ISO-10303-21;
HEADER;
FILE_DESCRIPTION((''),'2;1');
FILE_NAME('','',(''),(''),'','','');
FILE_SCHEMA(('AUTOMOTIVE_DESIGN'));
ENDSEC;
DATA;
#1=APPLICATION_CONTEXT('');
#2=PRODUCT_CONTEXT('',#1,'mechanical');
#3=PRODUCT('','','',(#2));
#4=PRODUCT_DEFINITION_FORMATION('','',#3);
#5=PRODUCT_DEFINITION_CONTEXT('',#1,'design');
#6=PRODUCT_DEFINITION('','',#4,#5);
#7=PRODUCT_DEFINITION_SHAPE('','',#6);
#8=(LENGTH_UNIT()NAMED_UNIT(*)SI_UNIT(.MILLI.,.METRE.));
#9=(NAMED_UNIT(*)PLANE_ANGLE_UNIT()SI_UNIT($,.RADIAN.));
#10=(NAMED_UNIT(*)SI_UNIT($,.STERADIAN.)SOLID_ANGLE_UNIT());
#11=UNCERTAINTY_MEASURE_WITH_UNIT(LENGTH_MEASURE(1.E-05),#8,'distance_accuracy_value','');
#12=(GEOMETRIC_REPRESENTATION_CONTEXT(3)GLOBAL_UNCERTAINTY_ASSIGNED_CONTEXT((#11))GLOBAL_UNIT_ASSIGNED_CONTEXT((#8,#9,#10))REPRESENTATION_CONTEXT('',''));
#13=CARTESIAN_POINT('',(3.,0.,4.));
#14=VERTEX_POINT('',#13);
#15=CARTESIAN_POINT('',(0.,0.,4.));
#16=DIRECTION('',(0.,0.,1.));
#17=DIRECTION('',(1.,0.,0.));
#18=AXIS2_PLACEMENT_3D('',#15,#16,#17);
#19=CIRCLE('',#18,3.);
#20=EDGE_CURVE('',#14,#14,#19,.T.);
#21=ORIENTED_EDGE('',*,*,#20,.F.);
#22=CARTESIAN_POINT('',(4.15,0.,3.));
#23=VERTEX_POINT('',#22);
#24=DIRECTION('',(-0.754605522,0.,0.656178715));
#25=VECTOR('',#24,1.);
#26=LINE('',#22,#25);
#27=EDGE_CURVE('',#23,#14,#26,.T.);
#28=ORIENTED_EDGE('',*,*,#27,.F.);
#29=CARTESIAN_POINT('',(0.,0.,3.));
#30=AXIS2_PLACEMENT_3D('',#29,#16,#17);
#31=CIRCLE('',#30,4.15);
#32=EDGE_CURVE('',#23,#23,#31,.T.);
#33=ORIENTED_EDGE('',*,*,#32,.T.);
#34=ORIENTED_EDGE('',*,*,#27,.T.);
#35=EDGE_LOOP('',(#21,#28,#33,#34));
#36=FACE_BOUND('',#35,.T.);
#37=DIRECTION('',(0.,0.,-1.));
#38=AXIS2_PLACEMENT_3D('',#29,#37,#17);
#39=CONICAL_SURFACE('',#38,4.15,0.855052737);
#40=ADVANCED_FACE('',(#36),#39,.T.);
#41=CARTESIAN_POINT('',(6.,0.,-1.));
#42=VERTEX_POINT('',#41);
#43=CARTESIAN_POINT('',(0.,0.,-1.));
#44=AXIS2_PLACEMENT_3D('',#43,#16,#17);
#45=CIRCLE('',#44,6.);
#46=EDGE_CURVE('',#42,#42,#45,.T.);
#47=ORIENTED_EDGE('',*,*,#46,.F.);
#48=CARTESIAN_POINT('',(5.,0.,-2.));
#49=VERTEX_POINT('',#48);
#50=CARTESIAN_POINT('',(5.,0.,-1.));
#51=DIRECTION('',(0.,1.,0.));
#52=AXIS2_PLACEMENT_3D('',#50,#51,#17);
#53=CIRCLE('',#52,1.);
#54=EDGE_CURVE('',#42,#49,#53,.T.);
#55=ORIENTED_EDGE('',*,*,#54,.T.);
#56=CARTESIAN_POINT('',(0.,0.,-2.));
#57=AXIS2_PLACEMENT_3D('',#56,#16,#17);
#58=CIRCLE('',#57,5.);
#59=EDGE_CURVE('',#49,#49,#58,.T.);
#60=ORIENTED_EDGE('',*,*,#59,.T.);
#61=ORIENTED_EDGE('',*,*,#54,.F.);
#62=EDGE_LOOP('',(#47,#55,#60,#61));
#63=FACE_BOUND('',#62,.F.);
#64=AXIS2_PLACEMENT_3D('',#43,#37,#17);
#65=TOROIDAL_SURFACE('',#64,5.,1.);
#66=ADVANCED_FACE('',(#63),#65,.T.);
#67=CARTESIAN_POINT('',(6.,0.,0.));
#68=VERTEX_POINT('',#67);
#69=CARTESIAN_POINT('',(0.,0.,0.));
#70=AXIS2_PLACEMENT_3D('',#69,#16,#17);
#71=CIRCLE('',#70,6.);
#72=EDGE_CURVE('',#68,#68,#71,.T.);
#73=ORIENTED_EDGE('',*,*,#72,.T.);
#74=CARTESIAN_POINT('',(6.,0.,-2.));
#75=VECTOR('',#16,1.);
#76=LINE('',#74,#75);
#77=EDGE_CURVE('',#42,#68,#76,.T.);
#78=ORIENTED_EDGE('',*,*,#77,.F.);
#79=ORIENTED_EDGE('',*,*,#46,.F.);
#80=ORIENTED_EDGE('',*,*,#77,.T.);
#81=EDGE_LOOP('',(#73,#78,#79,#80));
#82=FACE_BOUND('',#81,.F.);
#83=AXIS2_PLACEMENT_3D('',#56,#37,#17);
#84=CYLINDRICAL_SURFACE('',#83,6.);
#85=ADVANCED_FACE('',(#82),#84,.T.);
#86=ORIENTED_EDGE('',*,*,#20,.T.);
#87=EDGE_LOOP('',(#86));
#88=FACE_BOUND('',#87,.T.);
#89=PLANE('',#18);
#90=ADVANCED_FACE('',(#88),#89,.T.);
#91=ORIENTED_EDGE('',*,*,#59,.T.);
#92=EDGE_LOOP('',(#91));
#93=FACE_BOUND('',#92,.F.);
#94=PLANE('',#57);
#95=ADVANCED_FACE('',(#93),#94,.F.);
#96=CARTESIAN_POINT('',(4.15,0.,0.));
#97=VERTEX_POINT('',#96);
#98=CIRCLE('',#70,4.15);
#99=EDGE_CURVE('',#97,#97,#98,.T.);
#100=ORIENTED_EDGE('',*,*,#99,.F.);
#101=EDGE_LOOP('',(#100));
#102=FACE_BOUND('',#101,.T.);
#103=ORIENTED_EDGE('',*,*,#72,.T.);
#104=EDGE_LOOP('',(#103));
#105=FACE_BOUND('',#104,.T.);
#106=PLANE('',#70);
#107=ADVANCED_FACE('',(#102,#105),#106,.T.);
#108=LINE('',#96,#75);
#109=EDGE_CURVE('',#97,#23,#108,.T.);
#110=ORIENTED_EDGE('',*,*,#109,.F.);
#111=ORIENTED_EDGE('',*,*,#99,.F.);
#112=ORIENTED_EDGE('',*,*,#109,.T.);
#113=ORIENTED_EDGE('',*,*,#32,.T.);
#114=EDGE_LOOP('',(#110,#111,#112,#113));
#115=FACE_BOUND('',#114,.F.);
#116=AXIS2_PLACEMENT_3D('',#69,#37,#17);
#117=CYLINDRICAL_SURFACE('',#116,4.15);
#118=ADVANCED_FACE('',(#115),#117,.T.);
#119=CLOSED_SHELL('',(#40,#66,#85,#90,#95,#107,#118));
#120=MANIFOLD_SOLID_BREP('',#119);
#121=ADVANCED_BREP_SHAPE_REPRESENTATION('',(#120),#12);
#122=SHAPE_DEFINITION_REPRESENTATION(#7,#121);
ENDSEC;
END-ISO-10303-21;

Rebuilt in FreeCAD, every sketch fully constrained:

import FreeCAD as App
import Part
import Sketcher
from FreeCAD import Vector


def edges_at(feature, points):
    """Names of the edges that pass closest to the given points."""
    edges = feature.Shape.Edges
    near = lambda p: min(range(len(edges)), key=lambda i: edges[i].distToShape(Part.Vertex(*p))[0])
    return sorted({f"Edge{near(p) + 1}" for p in points})

doc = App.newDocument("Part")
params = doc.addObject("Spreadsheet::Sheet", "Params")
for row, (alias, value) in enumerate([
    ("sketch1_diameter", "8.3 mm"),
    ("pad1_length", "3 mm"),
    ("sketch2_width", "3 mm"),
    ("sketch2_height", "1 mm"),
    ("sketch2_width2", "4.15 mm"),
    ("revolution_angle", "360 deg"),
    ("sketch3_diameter", "12 mm"),
    ("pad2_length", "2 mm"),
    ("fillet_radius", "1 mm"),
], start=1):
    params.set(f"A{row}", alias)
    params.set(f"B{row}", "=" + value)
    params.setAlias(f"B{row}", alias)

body = doc.addObject("PartDesign::Body", "Body")

# Sketch on XY plane
sketch1 = body.newObject("Sketcher::SketchObject", "Sketch")
sketch1.AttachmentSupport = (doc.getObject("XY_Plane"), [""])
sketch1.MapMode = "FlatFace"
sketch1.addGeometry(Part.Circle(Vector(0, 0, 0), Vector(0, 0, 1), 4.15), False)
sketch1.addConstraint([
    Sketcher.Constraint("Coincident", 0, 3, -1, 1),
    Sketcher.Constraint("Diameter", 0, 8.3),
])
sketch1.setExpression("Constraints[1]", "Params.sketch1_diameter")
pad1 = body.newObject("PartDesign::Pad", "Pad")
pad1.Profile = sketch1
pad1.setExpression("Length", "Params.pad1_length")
body2 = doc.addObject("PartDesign::Body", "Body001")

# Sketch on XZ plane
sketch2 = body2.newObject("Sketcher::SketchObject", "Sketch001")
sketch2.AttachmentSupport = (doc.getObject("XZ_Plane001"), [""])
sketch2.MapMode = "FlatFace"
sketch2.addGeometry([
    Part.LineSegment(Vector(0, 3, 0), Vector(4.15, 3, 0)),
    Part.LineSegment(Vector(4.15, 3, 0), Vector(3, 4, 0)),
    Part.LineSegment(Vector(3, 4, 0), Vector(0, 4, 0)),
    Part.LineSegment(Vector(0, 4, 0), Vector(0, 3, 0)),
], False)
sketch2.addConstraint([
    Sketcher.Constraint("Coincident", 0, 2, 1, 1),
    Sketcher.Constraint("Coincident", 1, 2, 2, 1),
    Sketcher.Constraint("Coincident", 2, 2, 3, 1),
    Sketcher.Constraint("Coincident", 3, 2, 0, 1),
    Sketcher.Constraint("Horizontal", 0),
    Sketcher.Constraint("Horizontal", 2),
    Sketcher.Constraint("Vertical", 3),
    Sketcher.Constraint("PointOnObject", 2, 2, -2),
    Sketcher.Constraint("DistanceX", 2, 2, 2, 1, 3.0),
    Sketcher.Constraint("DistanceY", 3, 2, 3, 1, 1.0),
    Sketcher.Constraint("DistanceY", -1, 1, 0, 2, 3.0),
    Sketcher.Constraint("DistanceX", 0, 1, 0, 2, 4.15),
])
sketch2.setExpression("Constraints[8]", "Params.sketch2_width")
sketch2.setExpression("Constraints[9]", "Params.sketch2_height")
sketch2.setExpression("Constraints[11]", "Params.sketch2_width2")
revolution = body2.newObject("PartDesign::Revolution", "Revolution")
revolution.Profile = sketch2
revolution.ReferenceAxis = (sketch2, ["V_Axis"])
revolution.setExpression("Angle", "Params.revolution_angle")
body3 = doc.addObject("PartDesign::Body", "Body002")

# Sketch on XY plane
sketch3 = body3.newObject("Sketcher::SketchObject", "Sketch002")
sketch3.AttachmentSupport = (doc.getObject("XY_Plane002"), [""])
sketch3.MapMode = "FlatFace"
sketch3.AttachmentOffset = App.Placement(Vector(0, 0, -2), App.Rotation())
sketch3.addGeometry(Part.Circle(Vector(0, 0, 0), Vector(0, 0, 1), 6), False)
sketch3.addConstraint([
    Sketcher.Constraint("Coincident", 0, 3, -1, 1),
    Sketcher.Constraint("Diameter", 0, 12.0),
])
sketch3.setExpression("Constraints[1]", "Params.sketch3_diameter")
pad2 = body3.newObject("PartDesign::Pad", "Pad001")
pad2.Profile = sketch3
pad2.setExpression("Length", "Params.pad2_length")
doc.recompute()

fillet = body3.newObject("PartDesign::Fillet", "Fillet")
fillet.Base = (pad2, edges_at(pad2, [(-6, 0, -2)]))
fillet.setExpression("Radius", "Params.fillet_radius")
doc.recompute()

boolean = body3.newObject("PartDesign::Boolean", "Boolean")
boolean.Type = "Fuse"
boolean.addObjects([body])
doc.recompute()

boolean2 = body3.newObject("PartDesign::Boolean", "Boolean001")
boolean2.Type = "Fuse"
boolean2.addObjects([body2])

doc.recompute()
